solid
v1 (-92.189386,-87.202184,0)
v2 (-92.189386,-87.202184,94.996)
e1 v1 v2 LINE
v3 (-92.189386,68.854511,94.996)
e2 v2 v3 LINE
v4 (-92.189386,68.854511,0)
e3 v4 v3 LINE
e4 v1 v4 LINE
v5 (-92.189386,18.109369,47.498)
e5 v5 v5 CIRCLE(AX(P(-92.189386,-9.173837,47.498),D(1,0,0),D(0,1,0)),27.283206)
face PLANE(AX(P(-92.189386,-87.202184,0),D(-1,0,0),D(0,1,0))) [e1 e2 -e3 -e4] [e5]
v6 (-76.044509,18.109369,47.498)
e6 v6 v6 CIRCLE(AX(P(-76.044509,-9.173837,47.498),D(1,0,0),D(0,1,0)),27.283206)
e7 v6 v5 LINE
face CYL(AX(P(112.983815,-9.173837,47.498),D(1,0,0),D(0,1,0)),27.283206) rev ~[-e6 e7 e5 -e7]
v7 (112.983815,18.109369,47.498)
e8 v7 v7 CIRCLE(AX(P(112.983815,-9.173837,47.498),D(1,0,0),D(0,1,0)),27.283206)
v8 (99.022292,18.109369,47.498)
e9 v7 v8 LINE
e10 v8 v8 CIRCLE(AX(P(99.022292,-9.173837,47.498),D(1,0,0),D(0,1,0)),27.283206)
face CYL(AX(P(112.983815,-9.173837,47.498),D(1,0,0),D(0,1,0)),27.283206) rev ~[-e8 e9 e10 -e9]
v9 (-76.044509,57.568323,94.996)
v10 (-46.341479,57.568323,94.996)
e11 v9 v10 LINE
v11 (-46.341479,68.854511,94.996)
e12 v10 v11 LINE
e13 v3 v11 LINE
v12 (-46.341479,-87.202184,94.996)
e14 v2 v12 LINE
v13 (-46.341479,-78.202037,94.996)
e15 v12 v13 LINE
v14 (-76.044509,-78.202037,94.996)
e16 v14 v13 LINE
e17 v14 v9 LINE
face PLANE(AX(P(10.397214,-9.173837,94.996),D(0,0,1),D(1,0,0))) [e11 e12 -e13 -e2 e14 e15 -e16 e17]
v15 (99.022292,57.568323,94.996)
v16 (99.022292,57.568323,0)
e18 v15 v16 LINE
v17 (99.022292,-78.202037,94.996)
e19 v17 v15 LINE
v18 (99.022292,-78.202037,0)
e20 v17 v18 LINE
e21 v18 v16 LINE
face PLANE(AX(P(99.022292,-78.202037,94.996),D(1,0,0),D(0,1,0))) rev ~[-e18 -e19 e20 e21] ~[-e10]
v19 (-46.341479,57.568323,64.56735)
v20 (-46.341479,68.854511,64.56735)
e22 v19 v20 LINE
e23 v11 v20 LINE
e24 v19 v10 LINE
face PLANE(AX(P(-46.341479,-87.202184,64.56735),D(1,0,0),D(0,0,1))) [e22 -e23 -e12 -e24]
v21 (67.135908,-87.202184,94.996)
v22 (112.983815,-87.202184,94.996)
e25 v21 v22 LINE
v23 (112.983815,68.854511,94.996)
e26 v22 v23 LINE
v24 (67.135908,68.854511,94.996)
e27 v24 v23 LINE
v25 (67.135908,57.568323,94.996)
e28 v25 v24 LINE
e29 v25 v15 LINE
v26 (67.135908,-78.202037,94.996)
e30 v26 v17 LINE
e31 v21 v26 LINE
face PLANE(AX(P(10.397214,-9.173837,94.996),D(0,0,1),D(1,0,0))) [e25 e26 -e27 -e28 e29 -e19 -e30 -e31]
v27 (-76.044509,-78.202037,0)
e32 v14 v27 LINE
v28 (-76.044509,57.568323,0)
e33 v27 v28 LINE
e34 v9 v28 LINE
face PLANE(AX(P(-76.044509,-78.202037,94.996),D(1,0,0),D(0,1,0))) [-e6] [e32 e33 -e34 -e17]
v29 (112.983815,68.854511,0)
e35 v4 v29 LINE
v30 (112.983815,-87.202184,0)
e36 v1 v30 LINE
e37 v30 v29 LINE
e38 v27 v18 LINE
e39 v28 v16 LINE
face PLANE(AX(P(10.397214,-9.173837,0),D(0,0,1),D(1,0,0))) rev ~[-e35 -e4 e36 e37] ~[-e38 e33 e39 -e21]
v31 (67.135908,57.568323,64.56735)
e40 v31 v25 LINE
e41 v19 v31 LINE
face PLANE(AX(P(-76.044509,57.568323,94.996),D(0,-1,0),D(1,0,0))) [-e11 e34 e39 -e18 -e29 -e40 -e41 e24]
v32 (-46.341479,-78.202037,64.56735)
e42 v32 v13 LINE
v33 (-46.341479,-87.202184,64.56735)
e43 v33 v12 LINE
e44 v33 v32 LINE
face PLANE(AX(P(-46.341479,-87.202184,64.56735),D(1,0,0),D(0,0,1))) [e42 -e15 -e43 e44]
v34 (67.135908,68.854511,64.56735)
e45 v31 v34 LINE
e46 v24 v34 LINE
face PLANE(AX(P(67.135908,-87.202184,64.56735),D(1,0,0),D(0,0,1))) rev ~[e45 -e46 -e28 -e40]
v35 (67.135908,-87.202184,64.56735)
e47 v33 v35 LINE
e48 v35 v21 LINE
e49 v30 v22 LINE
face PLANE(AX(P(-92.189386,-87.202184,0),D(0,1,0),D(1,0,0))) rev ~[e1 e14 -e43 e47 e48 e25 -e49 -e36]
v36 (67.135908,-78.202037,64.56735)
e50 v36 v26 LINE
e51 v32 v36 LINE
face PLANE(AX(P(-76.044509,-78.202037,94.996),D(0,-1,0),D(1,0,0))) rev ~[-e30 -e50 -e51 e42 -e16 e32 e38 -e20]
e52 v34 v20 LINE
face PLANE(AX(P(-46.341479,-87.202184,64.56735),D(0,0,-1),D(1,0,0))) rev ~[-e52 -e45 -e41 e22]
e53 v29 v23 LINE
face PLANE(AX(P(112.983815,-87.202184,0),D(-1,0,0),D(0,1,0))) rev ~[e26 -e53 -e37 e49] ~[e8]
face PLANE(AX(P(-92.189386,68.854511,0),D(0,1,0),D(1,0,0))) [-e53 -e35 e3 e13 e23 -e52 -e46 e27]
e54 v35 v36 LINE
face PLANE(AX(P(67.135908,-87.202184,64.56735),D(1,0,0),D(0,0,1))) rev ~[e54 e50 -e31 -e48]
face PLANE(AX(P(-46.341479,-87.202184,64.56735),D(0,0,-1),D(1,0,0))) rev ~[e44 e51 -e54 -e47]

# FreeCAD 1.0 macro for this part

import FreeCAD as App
import Part
import Sketcher
Q = App.Units.Quantity


def add_polygon(sketch, points):
    """Adds a closed chain of lines whose ends are joined by coincident constraints."""
    first, n = sketch.GeometryCount, len(points)
    for a, b in zip(points, points[1:] + points[:1]):
        sketch.addGeometry(Part.LineSegment(App.Vector(*a, 0), App.Vector(*b, 0)), False)
    for i in range(n):
        sketch.addConstraint(Sketcher.Constraint("Coincident", first + i, 2, first + (i + 1) % n, 1))

doc = App.newDocument("Part")
body = doc.addObject("PartDesign::Body", "Body")

# Sketch on XY plane
sketch1 = body.newObject("Sketcher::SketchObject", "Sketch")
sketch1.AttachmentSupport = (doc.getObject("XY_Plane"), [""])
sketch1.MapMode = "FlatFace"
add_polygon(sketch1, [(-92, 69), (-92, -87), (113, -87), (113, 69)])  # lines 0-3
sketch1.addConstraint(Sketcher.Constraint("Vertical", 0))
sketch1.addConstraint(Sketcher.Constraint("Horizontal", 1))
sketch1.addConstraint(Sketcher.Constraint("Vertical", 2))
sketch1.addConstraint(Sketcher.Constraint("Horizontal", 3))
sketch1.addConstraint(Sketcher.Constraint("DistanceX", 1, 1, 1, 2, Q("205.173202 mm")))
sketch1.addConstraint(Sketcher.Constraint("DistanceY", 0, 2, 0, 1, Q("156.056695 mm")))
sketch1.addConstraint(Sketcher.Constraint("DistanceY", -1, 1, 2, 2, Q("68.854511 mm")))
sketch1.addConstraint(Sketcher.Constraint("DistanceX", 0, 2, -1, 1, Q("92.189386 mm")))
pad1 = body.newObject("PartDesign::Pad", "Pad")
pad1.Profile = sketch1
pad1.Length = Q("3.74 in")

# Sketch on XY plane
sketch2 = body.newObject("Sketcher::SketchObject", "Sketch001")
sketch2.AttachmentSupport = (doc.getObject("XY_Plane"), [""])
sketch2.MapMode = "FlatFace"
sketch2.AttachmentOffset = App.Placement(App.Vector(0, 0, 3.74 * 25.4), App.Rotation())
add_polygon(sketch2, [(-76, 58), (-76, -78), (99, -78), (99, 58)])  # lines 0-3
sketch2.addConstraint(Sketcher.Constraint("Vertical", 0))
sketch2.addConstraint(Sketcher.Constraint("Horizontal", 1))
sketch2.addConstraint(Sketcher.Constraint("Vertical", 2))
sketch2.addConstraint(Sketcher.Constraint("Horizontal", 3))
sketch2.addConstraint(Sketcher.Constraint("DistanceX", 1, 1, 1, 2, Q("175.066801 mm")))
sketch2.addConstraint(Sketcher.Constraint("DistanceY", 0, 2, 0, 1, Q("135.77036 mm")))
sketch2.addConstraint(Sketcher.Constraint("DistanceX", 0, 2, -1, 1, Q("76.044509 mm")))
sketch2.addConstraint(Sketcher.Constraint("DistanceY", 0, 2, -1, 1, Q("78.202037 mm")))
pocket1 = body.newObject("PartDesign::Pocket", "Pocket")
pocket1.Profile = sketch2
pocket1.Length = Q("4.55 in")

# Sketch on YZ plane
sketch3 = body.newObject("Sketcher::SketchObject", "Sketch002")
sketch3.AttachmentSupport = (doc.getObject("YZ_Plane"), [""])
sketch3.MapMode = "FlatFace"
sketch3.AttachmentOffset = App.Placement(App.Vector(0, 0, 112.983815), App.Rotation())
sketch3.addGeometry(Part.Circle(App.Vector(-9, 47, 0), App.Vector(0, 0, 1), 27), False)
sketch3.addConstraint(Sketcher.Constraint("DistanceY", -1, 1, 0, 3, Q("1.87 in")))
sketch3.addConstraint(Sketcher.Constraint("Diameter", 0, Q("54.566412 mm")))
sketch3.addConstraint(Sketcher.Constraint("DistanceX", 0, 3, -1, 1, Q("9.173837 mm")))
pocket2 = body.newObject("PartDesign::Pocket", "Pocket001")
pocket2.Profile = sketch3
pocket2.Type = "ThroughAll"

# Sketch on XZ plane
sketch4 = body.newObject("Sketcher::SketchObject", "Sketch003")
sketch4.AttachmentSupport = (doc.getObject("XZ_Plane"), [""])
sketch4.MapMode = "FlatFace"
sketch4.AttachmentOffset = App.Placement(App.Vector(0, 0, 87.202184), App.Rotation())
add_polygon(sketch4, [(-46, 125), (-46, 65), (67, 65), (67, 125)])  # lines 0-3
sketch4.addConstraint(Sketcher.Constraint("Vertical", 0))
sketch4.addConstraint(Sketcher.Constraint("Horizontal", 1))
sketch4.addConstraint(Sketcher.Constraint("Vertical", 2))
sketch4.addConstraint(Sketcher.Constraint("Horizontal", 3))
sketch4.addConstraint(Sketcher.Constraint("DistanceY", 0, 2, 0, 1, Q("60.8573 mm")))
sketch4.addConstraint(Sketcher.Constraint("DistanceX", 1, 1, 1, 2, Q("113.477387 mm")))
sketch4.addConstraint(Sketcher.Constraint("DistanceX", 0, 2, -1, 1, Q("46.341479 mm")))
sketch4.addConstraint(Sketcher.Constraint("DistanceY", -1, 1, 0, 2, Q("64.56735 mm")))
pocket3 = body.newObject("PartDesign::Pocket", "Pocket002")
pocket3.Profile = sketch4
pocket3.Type = "ThroughAll"

doc.recompute()
